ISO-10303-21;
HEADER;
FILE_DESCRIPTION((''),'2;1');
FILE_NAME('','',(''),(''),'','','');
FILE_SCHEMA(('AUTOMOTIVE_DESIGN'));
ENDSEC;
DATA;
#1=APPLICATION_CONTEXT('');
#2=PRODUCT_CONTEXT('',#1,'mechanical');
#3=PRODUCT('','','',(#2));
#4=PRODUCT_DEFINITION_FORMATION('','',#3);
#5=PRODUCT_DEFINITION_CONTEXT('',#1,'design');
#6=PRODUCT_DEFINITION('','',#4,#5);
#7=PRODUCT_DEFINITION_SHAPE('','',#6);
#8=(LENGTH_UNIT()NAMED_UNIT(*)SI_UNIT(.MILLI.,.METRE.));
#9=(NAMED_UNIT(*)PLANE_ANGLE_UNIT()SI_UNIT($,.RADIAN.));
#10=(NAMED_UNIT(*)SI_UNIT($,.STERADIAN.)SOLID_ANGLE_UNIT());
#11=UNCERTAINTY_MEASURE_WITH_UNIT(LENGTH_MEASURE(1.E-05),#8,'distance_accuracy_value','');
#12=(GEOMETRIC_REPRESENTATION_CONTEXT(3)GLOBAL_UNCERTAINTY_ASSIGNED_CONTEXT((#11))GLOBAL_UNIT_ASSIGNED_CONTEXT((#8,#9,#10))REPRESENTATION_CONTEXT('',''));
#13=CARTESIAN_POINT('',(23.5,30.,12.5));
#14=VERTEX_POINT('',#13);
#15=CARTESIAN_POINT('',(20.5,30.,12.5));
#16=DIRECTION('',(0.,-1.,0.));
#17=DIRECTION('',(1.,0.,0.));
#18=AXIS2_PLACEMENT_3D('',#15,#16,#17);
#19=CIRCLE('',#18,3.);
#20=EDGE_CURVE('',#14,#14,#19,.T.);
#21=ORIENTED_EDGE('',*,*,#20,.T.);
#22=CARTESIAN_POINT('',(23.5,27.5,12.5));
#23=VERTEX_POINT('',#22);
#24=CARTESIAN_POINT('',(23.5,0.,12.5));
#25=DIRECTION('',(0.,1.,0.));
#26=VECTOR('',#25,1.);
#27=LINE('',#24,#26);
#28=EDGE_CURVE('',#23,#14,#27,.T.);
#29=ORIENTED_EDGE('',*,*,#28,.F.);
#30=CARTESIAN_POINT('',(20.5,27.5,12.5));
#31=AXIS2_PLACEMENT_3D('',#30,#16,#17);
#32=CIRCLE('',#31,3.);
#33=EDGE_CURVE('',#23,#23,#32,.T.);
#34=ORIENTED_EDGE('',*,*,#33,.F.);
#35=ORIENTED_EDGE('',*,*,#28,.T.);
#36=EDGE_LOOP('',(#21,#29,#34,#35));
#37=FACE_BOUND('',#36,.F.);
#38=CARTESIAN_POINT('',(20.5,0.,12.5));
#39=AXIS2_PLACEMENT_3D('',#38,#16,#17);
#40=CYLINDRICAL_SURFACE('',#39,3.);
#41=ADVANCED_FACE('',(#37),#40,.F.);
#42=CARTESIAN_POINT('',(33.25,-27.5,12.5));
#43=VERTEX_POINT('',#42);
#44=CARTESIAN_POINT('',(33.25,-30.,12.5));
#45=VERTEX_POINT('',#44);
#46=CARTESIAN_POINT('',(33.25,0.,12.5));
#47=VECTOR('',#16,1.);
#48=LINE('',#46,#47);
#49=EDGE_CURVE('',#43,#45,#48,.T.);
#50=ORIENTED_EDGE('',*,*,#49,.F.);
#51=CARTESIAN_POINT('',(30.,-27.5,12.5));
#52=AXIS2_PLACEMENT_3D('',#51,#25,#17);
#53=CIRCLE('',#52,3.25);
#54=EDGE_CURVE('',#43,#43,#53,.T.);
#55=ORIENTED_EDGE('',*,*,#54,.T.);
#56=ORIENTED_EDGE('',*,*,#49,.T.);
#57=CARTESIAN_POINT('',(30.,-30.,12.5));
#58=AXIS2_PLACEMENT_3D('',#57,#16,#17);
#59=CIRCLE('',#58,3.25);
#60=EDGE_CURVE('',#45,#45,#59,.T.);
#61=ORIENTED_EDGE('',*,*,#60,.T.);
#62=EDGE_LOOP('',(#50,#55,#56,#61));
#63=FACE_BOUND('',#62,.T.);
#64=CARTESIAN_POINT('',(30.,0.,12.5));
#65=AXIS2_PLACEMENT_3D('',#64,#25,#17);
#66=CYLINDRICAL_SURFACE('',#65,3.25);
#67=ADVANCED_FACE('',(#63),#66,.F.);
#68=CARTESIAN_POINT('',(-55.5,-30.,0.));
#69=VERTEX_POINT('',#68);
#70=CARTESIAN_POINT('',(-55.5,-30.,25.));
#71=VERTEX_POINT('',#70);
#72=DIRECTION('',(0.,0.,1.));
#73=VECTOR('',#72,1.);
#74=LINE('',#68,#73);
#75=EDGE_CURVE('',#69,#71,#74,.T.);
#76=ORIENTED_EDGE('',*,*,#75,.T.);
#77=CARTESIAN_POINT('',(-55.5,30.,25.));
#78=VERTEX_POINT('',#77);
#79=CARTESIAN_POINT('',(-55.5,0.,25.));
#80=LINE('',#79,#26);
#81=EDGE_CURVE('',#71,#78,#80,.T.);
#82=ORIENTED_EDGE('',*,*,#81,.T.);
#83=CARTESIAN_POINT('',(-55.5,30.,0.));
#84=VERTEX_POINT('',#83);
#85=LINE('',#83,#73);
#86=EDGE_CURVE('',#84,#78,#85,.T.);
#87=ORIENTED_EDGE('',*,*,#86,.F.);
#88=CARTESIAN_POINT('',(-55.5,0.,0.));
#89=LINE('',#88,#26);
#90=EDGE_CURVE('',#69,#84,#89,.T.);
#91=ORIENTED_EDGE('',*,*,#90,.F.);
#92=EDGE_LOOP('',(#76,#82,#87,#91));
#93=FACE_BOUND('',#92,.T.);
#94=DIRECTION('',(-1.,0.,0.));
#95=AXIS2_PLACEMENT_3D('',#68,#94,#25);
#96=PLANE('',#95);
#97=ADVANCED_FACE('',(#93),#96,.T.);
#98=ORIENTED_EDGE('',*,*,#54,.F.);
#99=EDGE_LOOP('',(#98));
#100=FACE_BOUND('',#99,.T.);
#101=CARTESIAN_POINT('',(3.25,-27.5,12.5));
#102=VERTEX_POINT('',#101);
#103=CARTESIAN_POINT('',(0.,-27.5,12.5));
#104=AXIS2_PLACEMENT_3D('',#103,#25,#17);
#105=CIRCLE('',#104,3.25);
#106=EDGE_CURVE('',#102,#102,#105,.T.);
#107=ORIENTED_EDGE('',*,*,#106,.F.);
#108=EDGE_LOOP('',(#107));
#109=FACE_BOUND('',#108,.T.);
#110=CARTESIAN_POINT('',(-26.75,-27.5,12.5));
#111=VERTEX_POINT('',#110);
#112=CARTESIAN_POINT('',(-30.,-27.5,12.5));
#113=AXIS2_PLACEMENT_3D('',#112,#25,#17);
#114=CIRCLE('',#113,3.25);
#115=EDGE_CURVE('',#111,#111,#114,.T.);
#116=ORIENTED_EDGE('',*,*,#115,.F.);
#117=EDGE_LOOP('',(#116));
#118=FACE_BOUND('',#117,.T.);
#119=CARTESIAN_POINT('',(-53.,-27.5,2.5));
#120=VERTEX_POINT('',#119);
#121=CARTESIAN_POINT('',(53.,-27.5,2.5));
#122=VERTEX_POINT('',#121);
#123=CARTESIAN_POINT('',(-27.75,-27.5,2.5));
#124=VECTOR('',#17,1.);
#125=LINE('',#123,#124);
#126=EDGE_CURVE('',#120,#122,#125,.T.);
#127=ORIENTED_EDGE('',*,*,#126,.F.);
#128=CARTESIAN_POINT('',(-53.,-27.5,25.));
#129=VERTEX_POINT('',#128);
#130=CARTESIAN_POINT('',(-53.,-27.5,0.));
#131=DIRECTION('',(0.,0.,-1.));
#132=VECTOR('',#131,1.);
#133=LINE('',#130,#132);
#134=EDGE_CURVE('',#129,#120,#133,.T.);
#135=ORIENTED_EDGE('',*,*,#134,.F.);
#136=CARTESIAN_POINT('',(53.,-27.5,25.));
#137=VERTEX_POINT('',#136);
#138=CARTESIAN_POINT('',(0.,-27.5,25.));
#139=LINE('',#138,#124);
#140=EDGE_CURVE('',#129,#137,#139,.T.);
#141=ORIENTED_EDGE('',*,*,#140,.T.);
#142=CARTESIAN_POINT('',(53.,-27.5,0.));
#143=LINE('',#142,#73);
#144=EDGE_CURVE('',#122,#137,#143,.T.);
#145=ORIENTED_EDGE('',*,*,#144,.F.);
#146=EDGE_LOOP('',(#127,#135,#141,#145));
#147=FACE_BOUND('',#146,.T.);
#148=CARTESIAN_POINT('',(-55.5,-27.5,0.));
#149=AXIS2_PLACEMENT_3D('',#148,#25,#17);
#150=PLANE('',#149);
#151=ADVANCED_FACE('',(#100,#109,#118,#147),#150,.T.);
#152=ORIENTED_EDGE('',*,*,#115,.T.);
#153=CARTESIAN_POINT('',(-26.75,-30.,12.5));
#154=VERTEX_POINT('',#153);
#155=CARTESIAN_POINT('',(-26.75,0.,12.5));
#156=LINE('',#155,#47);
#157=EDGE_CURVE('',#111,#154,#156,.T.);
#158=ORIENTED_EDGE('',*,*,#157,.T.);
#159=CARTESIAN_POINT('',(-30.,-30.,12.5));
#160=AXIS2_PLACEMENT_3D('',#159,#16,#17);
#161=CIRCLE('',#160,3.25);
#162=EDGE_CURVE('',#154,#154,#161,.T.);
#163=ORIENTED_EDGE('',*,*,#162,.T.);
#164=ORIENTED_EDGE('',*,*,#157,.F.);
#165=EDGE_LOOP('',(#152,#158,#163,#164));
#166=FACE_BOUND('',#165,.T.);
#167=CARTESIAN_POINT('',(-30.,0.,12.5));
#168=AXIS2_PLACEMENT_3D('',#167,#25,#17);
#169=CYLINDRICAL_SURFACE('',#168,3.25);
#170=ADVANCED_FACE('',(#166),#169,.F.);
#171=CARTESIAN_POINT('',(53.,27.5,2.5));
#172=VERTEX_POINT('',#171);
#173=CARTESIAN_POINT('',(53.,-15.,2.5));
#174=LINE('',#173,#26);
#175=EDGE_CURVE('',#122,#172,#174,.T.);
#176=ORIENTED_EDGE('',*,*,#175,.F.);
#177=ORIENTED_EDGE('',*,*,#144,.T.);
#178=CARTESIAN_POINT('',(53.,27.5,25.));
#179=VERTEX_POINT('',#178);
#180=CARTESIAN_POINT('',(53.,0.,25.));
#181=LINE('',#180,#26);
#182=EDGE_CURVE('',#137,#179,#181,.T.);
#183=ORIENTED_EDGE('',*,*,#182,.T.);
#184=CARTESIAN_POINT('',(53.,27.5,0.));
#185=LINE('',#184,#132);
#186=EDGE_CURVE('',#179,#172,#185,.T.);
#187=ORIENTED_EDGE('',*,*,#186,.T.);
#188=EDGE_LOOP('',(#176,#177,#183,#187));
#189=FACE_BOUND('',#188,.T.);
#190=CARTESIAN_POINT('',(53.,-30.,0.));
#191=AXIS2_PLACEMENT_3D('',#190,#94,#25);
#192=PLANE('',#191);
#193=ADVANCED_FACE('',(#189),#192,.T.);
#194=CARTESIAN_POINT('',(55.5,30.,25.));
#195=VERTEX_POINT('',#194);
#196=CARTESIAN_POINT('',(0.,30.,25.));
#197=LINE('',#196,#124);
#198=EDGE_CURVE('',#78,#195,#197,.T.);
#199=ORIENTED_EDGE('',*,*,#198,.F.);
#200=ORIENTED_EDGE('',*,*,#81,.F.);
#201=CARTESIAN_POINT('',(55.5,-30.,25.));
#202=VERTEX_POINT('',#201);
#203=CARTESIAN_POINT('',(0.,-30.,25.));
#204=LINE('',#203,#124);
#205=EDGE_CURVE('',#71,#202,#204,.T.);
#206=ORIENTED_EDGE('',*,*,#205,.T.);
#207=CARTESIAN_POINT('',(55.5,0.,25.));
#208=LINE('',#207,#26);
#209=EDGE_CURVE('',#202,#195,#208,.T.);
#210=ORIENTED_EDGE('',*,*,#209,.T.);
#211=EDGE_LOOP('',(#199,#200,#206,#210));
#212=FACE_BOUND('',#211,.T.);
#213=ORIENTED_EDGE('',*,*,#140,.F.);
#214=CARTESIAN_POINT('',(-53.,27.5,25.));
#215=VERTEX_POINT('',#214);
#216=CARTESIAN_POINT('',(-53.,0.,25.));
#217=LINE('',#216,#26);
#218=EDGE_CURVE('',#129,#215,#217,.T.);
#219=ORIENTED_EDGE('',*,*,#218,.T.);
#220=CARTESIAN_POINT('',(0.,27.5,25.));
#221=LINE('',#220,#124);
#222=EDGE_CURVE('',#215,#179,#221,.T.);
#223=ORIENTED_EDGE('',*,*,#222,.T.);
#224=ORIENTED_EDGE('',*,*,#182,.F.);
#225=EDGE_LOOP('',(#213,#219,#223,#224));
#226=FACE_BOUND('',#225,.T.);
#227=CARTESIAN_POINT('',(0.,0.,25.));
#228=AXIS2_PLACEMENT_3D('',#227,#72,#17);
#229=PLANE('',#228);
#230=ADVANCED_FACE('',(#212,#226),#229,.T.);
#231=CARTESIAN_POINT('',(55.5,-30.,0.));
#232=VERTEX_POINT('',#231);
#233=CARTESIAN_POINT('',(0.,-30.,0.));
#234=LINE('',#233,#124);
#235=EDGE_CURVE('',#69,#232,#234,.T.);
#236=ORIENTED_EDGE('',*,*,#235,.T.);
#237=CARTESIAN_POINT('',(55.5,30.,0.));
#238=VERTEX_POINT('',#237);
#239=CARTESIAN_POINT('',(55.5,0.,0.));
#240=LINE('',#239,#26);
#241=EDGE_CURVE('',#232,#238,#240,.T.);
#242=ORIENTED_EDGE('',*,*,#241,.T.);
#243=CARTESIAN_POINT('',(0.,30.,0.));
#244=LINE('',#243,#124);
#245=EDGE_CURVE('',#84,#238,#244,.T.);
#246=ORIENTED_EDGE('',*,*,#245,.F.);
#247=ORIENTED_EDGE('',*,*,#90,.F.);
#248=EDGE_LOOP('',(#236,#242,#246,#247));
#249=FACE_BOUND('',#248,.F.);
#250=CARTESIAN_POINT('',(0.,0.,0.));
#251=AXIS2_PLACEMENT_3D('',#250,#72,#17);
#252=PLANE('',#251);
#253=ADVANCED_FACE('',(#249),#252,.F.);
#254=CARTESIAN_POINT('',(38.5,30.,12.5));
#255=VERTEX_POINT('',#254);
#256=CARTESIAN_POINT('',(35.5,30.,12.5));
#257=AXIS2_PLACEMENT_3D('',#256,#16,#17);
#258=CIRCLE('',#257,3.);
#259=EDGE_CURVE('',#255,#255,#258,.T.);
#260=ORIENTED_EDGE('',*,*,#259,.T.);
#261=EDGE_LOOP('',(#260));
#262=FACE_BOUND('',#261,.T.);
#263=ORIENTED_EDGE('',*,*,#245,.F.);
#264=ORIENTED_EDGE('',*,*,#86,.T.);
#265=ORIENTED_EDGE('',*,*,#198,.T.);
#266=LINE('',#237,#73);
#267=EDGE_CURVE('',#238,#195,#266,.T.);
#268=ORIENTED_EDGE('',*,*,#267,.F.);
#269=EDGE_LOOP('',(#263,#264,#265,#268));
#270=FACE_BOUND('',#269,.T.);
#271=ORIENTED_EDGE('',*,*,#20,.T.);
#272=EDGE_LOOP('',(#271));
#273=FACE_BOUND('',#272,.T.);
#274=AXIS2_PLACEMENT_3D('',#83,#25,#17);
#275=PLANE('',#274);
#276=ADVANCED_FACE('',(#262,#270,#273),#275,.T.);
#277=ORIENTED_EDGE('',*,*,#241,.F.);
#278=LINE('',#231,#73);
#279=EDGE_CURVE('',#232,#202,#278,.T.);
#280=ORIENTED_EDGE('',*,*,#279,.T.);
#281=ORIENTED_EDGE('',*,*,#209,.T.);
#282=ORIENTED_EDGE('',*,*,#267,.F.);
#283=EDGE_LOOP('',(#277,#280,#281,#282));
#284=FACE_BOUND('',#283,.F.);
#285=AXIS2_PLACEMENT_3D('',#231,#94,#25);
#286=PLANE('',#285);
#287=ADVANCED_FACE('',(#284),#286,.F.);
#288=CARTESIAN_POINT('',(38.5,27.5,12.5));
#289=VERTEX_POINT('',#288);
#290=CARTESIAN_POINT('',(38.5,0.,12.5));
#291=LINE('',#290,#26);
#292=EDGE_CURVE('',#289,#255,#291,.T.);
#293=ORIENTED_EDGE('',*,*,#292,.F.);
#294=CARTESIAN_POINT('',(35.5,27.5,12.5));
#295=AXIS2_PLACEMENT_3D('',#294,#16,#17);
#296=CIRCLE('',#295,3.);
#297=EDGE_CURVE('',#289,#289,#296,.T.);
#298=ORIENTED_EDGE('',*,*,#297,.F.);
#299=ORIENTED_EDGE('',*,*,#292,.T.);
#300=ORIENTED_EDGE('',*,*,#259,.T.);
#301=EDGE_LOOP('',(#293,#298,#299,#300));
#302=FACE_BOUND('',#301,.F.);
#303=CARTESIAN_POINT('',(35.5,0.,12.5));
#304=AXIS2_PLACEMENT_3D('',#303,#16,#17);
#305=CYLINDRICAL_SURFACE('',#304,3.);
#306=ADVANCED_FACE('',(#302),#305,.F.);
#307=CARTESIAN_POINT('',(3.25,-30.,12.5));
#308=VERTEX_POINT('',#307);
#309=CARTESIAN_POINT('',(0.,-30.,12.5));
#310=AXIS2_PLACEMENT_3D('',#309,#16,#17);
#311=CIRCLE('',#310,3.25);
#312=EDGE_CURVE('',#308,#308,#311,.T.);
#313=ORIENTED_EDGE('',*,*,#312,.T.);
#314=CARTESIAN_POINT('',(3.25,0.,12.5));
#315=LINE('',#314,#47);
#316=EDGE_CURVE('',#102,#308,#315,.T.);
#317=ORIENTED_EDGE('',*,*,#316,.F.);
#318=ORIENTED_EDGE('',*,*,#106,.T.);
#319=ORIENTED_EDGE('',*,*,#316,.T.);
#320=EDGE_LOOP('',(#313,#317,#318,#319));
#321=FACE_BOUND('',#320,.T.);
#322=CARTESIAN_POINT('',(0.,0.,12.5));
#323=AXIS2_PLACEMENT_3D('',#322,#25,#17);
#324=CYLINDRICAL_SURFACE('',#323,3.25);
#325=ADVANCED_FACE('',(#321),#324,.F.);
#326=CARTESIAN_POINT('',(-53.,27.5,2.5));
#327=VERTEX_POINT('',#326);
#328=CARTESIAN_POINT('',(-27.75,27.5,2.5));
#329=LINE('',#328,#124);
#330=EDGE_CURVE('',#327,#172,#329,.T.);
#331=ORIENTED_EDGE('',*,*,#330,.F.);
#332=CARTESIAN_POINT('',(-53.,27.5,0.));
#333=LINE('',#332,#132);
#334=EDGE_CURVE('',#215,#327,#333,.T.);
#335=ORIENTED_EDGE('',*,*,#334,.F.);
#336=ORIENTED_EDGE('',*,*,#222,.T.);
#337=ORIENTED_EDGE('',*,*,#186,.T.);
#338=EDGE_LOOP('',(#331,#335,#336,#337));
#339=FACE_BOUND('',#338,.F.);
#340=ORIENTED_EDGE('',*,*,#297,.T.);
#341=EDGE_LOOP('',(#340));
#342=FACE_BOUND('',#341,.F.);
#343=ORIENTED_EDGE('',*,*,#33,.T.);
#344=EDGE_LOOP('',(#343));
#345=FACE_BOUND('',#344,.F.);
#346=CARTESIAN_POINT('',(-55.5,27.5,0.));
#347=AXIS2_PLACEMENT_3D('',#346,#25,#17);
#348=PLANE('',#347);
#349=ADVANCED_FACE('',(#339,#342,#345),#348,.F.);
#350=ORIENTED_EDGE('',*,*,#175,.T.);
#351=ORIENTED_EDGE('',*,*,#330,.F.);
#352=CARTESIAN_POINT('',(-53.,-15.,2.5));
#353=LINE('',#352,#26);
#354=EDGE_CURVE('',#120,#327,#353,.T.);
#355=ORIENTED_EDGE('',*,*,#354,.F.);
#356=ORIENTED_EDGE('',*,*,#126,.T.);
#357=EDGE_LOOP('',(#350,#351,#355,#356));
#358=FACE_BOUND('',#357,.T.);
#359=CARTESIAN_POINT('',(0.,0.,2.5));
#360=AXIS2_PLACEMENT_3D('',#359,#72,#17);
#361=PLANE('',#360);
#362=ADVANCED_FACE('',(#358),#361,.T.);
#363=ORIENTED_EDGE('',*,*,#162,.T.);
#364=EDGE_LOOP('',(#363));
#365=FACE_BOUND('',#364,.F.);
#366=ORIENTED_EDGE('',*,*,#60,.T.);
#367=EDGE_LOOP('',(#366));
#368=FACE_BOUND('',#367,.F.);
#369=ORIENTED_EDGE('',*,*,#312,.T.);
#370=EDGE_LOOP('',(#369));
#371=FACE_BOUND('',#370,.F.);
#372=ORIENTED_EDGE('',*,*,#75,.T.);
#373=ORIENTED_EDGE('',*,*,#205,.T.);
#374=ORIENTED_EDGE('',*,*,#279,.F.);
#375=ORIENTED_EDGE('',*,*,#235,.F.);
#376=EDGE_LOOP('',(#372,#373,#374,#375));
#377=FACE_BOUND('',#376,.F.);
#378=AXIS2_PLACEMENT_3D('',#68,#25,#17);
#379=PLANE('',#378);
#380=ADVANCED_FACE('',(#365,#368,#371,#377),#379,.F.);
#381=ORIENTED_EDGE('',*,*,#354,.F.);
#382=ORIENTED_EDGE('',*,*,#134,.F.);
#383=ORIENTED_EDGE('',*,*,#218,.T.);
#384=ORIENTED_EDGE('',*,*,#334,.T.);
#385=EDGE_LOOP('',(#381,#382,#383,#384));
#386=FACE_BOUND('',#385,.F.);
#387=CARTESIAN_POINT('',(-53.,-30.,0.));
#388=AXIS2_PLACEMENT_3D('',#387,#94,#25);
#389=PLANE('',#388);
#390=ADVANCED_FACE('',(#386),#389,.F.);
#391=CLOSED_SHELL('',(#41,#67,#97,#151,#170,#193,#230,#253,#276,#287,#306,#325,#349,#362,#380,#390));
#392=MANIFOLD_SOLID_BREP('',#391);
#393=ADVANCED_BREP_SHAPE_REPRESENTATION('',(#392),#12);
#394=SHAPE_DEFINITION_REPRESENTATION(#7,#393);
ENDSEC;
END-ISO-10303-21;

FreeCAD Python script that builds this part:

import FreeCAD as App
import Part
import Sketcher

V = App.Vector


def faces_at(feature, points):
    """Names of the faces that lie closest to the given points."""
    faces = feature.Shape.Faces
    near = lambda p: min(range(len(faces)), key=lambda i: faces[i].distToShape(Part.Vertex(*p))[0])
    return sorted({f"Face{near(p) + 1}" for p in points})


def add_polygon(sketch, points):
    """Adds a closed chain of lines whose ends are joined by coincident constraints."""
    first, n = sketch.GeometryCount, len(points)
    for a, b in zip(points, points[1:] + points[:1]):
        sketch.addGeometry(Part.LineSegment(App.Vector(*a, 0), App.Vector(*b, 0)), False)
    for i in range(n):
        sketch.addConstraint(Sketcher.Constraint("Coincident", first + i, 2, first + (i + 1) % n, 1))

doc = App.newDocument("Part")
body = doc.addObject("PartDesign::Body", "Body")

sketch1 = doc.addObject("Sketcher::SketchObject", "Sketch")
body.addObject(sketch1)
sketch1.AttachmentSupport = (doc.XY_Plane, [""])
sketch1.MapMode = "FlatFace"
add_polygon(sketch1, [(-55.5, 30), (-55.5, -30), (55.5, -30), (55.5, 30)])
sketch1.addConstraint(Sketcher.Constraint("Vertical", 0))
sketch1.addConstraint(Sketcher.Constraint("Horizontal", 1))
sketch1.addConstraint(Sketcher.Constraint("Vertical", 2))
sketch1.addConstraint(Sketcher.Constraint("Horizontal", 3))
sketch1.addConstraint(Sketcher.Constraint("Symmetric", 0, 2, 2, 2, -1, 1))
sketch1.addConstraint(Sketcher.Constraint("DistanceX", 1, 1, 1, 2, 111.0))
sketch1.addConstraint(Sketcher.Constraint("DistanceY", 0, 2, 0, 1, 60.0))
pad1 = doc.addObject("PartDesign::Pad", "Pad")
body.addObject(pad1)
pad1.Profile = sketch1
pad1.Length = 25
doc.recompute()

thickness = doc.addObject("PartDesign::Thickness", "Thickness")
body.addObject(thickness)
thickness.Base = (pad1, faces_at(pad1, [(0, 0, 25)]))
thickness.Value = 2.5
thickness.Reversed = True
thickness.Join = "Arc"

sketch2 = doc.addObject("Sketcher::SketchObject", "Sketch001")
body.addObject(sketch2)
sketch2.AttachmentSupport = (doc.XZ_Plane, [""])
sketch2.MapMode = "FlatFace"
sketch2.addGeometry(Part.Circle(V(-30, 12.5, 0), V(0, 0, 1), 3.25), False)
sketch2.addGeometry(Part.Circle(V(30, 12.5, 0), V(0, 0, 1), 3.25), False)
sketch2.addGeometry(Part.Circle(V(0, 12.5, 0), V(0, 0, 1), 3.25), False)
sketch2.addConstraint(Sketcher.Constraint("Equal", 0, 1))
sketch2.addConstraint(Sketcher.Constraint("Equal", 1, 2))
sketch2.addConstraint(Sketcher.Constraint("Symmetric", 0, 3, 1, 3, -2))
sketch2.addConstraint(Sketcher.Constraint("PointOnObject", 2, 3, -2))
sketch2.addConstraint(Sketcher.Constraint("Horizontal", 1, 3, 2, 3))
sketch2.addConstraint(Sketcher.Constraint("Diameter", 0, 6.5))
sketch2.addConstraint(Sketcher.Constraint("DistanceX", 0, 3, -1, 1, 30.0))
sketch2.addConstraint(Sketcher.Constraint("DistanceY", -1, 1, 0, 3, 12.5))
pocket1 = doc.addObject("PartDesign::Pocket", "Pocket")
body.addObject(pocket1)
pocket1.Profile = sketch2
pocket1.Type = "ThroughAll"
pocket1.Reversed = True

sketch3 = doc.addObject("Sketcher::SketchObject", "Sketch002")
body.addObject(sketch3)
sketch3.AttachmentSupport = (doc.XZ_Plane, [""])
sketch3.MapMode = "FlatFace"
sketch3.addGeometry(Part.Circle(V(20.5, 12.5, 0), V(0, 0, 1), 3), False)
sketch3.addGeometry(Part.Circle(V(35.5, 12.5, 0), V(0, 0, 1), 3), False)
sketch3.addConstraint(Sketcher.Constraint("Equal", 0, 1))
sketch3.addConstraint(Sketcher.Constraint("Horizontal", 0, 3, 1, 3))
sketch3.addConstraint(Sketcher.Constraint("Diameter", 0, 6.0))
sketch3.addConstraint(Sketcher.Constraint("DistanceX", 0, 3, 1, 3, 15.0))
sketch3.addConstraint(Sketcher.Constraint("DistanceX", -1, 1, 0, 3, 20.5))
sketch3.addConstraint(Sketcher.Constraint("DistanceY", -1, 1, 0, 3, 12.5))
pocket2 = doc.addObject("PartDesign::Pocket", "Pocket001")
body.addObject(pocket2)
pocket2.Profile = sketch3
pocket2.Type = "ThroughAll"

doc.recompute()
